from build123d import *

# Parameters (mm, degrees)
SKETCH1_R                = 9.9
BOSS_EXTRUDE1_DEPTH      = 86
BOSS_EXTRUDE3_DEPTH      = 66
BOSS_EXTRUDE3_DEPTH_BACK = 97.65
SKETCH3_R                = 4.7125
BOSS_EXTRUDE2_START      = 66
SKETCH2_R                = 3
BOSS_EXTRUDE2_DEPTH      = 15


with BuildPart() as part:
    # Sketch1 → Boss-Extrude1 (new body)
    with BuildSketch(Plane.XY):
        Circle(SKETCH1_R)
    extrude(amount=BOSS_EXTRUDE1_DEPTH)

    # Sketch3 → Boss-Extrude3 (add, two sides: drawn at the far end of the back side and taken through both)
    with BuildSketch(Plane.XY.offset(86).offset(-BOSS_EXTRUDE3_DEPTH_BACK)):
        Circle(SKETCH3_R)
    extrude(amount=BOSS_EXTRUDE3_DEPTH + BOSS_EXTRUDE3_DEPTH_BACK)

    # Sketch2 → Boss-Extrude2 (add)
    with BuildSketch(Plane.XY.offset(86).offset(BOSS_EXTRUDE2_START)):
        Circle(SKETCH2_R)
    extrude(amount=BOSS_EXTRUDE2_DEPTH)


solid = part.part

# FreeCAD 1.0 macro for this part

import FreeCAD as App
import Part
import Sketcher

V = App.Vector
Q = App.Units.Quantity

doc = App.newDocument("Part")
body = doc.addObject("PartDesign::Body", "Body")

# Sketch on XY plane
sketch1 = doc.addObject("Sketcher::SketchObject", "Sketch")
body.addObject(sketch1)
sketch1.AttachmentSupport = (doc.XY_Plane, [""])
sketch1.MapMode = "FlatFace"
sketch1.addGeometry(Part.Circle(V(0, 0, 0), V(0, 0, 1), 10), False)
sketch1.addConstraint([
    Sketcher.Constraint("Coincident", 0, 3, -1, 1),
    Sketcher.Constraint("Diameter", 0, Q("19.8 mm")),
])
pad1 = doc.addObject("PartDesign::Pad", "Pad")
body.addObject(pad1)
pad1.Profile = sketch1
pad1.Length = 86

# Sketch on XY plane
sketch2 = doc.addObject("Sketcher::SketchObject", "Sketch001")
body.addObject(sketch2)
sketch2.AttachmentSupport = (doc.XY_Plane, [""])
sketch2.MapMode = "FlatFace"
sketch2.AttachmentOffset = App.Placement(V(0, 0, 86), App.Rotation())
sketch2.addGeometry(Part.Circle(V(0, 0, 0), V(0, 0, 1), 4.7), False)
sketch2.addConstraint([
    Sketcher.Constraint("Coincident", 0, 3, -1, 1),
    Sketcher.Constraint("Diameter", 0, Q("9.425 mm")),
])
pad2 = doc.addObject("PartDesign::Pad", "Pad001")
body.addObject(pad2)
pad2.Profile = sketch2
pad2.Type = "TwoLengths"
pad2.Length = 66
pad2.Length2 = 97.65

# Sketch on XY plane
sketch3 = doc.addObject("Sketcher::SketchObject", "Sketch002")
body.addObject(sketch3)
sketch3.AttachmentSupport = (doc.XY_Plane, [""])
sketch3.MapMode = "FlatFace"
sketch3.AttachmentOffset = App.Placement(V(0, 0, 152), App.Rotation())
sketch3.addGeometry(Part.Circle(V(0, 0, 0), V(0, 0, 1), 3), False)
sketch3.addConstraint([
    Sketcher.Constraint("Coincident", 0, 3, -1, 1),
    Sketcher.Constraint("Diameter", 0, Q("6 mm")),
])
pad3 = doc.addObject("PartDesign::Pad", "Pad002")
body.addObject(pad3)
pad3.Profile = sketch3
pad3.Length = 15

doc.recompute()
